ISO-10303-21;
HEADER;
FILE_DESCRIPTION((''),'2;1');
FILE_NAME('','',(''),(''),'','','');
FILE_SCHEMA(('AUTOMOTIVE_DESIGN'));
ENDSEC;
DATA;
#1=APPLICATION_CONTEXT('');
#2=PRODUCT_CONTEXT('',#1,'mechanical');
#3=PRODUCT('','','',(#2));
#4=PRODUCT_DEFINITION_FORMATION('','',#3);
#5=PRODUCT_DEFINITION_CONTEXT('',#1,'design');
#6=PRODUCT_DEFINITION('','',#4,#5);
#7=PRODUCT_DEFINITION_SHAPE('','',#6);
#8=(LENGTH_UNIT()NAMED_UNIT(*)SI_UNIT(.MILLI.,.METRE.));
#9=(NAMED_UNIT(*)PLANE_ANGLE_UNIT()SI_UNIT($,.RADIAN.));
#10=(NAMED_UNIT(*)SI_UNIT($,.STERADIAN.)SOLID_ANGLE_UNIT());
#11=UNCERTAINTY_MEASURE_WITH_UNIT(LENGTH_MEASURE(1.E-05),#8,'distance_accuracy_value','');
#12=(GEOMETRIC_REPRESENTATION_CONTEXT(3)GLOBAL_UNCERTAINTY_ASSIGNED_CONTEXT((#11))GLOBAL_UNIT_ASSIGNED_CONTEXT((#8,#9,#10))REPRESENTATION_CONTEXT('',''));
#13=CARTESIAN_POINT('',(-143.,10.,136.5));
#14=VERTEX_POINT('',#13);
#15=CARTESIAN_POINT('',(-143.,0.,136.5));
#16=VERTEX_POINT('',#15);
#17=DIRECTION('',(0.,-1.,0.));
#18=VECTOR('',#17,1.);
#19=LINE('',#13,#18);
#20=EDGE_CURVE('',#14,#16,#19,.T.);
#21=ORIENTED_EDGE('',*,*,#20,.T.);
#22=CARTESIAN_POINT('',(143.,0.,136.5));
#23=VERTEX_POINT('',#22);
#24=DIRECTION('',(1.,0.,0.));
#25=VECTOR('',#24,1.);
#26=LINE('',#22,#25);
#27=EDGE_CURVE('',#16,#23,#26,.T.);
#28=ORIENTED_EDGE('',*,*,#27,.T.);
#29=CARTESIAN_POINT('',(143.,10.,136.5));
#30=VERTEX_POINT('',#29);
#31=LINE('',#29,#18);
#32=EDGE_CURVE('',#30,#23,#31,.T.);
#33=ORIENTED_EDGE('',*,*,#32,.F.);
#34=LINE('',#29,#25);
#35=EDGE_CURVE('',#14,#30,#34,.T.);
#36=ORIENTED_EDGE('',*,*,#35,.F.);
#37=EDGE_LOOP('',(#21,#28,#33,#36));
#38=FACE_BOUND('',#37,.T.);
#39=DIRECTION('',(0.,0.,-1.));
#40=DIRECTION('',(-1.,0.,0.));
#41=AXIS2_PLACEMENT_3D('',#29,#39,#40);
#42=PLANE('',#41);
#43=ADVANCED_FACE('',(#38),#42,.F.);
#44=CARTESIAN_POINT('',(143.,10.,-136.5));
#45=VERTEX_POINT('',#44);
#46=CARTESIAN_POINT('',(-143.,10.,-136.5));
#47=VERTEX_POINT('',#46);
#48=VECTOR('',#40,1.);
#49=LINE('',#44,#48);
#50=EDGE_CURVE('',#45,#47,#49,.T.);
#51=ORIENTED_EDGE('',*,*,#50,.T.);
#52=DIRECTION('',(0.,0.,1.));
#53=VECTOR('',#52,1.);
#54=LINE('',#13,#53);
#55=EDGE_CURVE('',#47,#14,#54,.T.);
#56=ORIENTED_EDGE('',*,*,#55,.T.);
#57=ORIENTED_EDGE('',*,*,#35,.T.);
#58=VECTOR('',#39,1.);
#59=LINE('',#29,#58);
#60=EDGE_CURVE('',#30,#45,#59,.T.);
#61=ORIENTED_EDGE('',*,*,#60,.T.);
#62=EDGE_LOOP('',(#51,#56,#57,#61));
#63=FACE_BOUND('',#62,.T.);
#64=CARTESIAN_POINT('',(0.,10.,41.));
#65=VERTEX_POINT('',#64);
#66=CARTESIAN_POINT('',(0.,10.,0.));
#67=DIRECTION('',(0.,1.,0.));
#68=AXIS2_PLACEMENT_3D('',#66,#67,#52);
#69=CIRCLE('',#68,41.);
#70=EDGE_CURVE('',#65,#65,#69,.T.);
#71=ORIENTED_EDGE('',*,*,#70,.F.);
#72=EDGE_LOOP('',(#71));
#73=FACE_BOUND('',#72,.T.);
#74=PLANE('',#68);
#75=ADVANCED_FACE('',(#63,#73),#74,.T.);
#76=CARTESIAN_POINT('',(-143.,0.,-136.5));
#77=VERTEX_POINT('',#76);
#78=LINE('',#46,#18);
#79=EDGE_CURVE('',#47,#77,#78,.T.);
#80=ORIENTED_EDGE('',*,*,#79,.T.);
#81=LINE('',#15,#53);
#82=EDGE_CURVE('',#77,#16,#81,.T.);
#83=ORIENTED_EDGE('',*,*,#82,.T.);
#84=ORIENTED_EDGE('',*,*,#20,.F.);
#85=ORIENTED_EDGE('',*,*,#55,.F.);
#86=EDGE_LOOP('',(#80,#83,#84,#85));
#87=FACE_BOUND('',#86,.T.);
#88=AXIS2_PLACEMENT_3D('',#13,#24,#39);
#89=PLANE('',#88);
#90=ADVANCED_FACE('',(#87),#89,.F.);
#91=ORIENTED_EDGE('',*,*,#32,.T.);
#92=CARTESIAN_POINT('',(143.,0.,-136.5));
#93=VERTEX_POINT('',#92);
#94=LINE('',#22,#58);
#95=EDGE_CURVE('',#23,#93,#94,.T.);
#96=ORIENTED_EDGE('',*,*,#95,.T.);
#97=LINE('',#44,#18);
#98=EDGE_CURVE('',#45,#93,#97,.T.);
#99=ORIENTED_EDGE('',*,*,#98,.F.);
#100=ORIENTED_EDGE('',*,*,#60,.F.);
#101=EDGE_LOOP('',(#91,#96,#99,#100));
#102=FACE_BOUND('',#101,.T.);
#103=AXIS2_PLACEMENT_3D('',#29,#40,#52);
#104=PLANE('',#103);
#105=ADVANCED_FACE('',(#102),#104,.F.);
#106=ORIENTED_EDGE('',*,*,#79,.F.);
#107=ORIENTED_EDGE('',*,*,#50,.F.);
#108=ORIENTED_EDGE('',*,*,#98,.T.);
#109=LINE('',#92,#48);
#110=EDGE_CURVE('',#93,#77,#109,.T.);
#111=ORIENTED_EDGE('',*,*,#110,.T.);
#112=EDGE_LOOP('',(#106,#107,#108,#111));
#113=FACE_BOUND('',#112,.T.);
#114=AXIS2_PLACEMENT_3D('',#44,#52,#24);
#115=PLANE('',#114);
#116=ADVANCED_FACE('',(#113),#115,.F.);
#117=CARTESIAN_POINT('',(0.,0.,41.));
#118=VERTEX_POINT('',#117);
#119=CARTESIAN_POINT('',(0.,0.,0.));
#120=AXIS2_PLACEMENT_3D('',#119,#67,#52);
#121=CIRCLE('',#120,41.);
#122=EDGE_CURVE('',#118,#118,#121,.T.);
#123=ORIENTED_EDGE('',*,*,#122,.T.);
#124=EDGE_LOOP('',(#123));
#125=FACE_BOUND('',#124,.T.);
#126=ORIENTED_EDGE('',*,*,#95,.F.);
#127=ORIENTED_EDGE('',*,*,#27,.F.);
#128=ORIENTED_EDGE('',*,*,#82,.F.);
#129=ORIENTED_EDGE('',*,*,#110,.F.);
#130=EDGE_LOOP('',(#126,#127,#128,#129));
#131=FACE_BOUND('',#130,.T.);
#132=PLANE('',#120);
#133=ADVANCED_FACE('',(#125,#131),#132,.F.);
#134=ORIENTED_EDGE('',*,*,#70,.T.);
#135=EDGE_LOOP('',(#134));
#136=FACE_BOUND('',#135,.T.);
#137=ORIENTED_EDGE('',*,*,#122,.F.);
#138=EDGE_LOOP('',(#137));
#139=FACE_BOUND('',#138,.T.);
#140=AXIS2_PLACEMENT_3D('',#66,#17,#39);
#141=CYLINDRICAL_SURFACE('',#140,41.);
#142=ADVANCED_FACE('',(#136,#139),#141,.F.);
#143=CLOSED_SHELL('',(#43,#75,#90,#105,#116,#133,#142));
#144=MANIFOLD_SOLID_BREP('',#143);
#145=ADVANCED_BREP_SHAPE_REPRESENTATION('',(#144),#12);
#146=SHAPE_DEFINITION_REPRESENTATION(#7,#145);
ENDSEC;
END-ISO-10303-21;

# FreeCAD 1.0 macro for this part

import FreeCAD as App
import Part
import Sketcher

doc = App.newDocument("Part")
body = doc.addObject("PartDesign::Body", "Body")

# Sketch on XZ plane
sketch1 = body.newObject("Sketcher::SketchObject", "Sketch")
sketch1.AttachmentSupport = (doc.getObject("XZ_Plane"), [""])
sketch1.MapMode = "FlatFace"
sketch1.addGeometry([
    Part.LineSegment(App.Vector(-143, -136, 0), App.Vector(-143, 136, 0)),  # 0
    Part.LineSegment(App.Vector(-143, 136, 0), App.Vector(143, 136, 0)),  # 1
    Part.LineSegment(App.Vector(143, 136, 0), App.Vector(143, -136, 0)),  # 2
    Part.LineSegment(App.Vector(143, -136, 0), App.Vector(-143, -136, 0)),  # 3
    Part.Circle(App.Vector(0, 0, 0), App.Vector(0, 0, 1), 41),  # 4
], False)
sketch1.addConstraint([
    Sketcher.Constraint("Coincident", 0, 2, 1, 1),
    Sketcher.Constraint("Coincident", 1, 2, 2, 1),
    Sketcher.Constraint("Coincident", 2, 2, 3, 1),
    Sketcher.Constraint("Coincident", 3, 2, 0, 1),
    Sketcher.Constraint("Vertical", 0),
    Sketcher.Constraint("Horizontal", 1),
    Sketcher.Constraint("Vertical", 2),
    Sketcher.Constraint("Horizontal", 3),
    Sketcher.Constraint("Coincident", 4, 3, -1, 1),
    Sketcher.Constraint("Symmetric", 0, 2, 2, 2, -1, 1),
    Sketcher.Constraint("Diameter", 4, 82.0),
    Sketcher.Constraint("DistanceX", 1, 1, 1, 2, 286.0),
    Sketcher.Constraint("DistanceY", 0, 1, 0, 2, 273.0),
])
pad1 = body.newObject("PartDesign::Pad", "Pad")
pad1.Profile = sketch1
pad1.Length = 10
pad1.Reversed = True

doc.recompute()
